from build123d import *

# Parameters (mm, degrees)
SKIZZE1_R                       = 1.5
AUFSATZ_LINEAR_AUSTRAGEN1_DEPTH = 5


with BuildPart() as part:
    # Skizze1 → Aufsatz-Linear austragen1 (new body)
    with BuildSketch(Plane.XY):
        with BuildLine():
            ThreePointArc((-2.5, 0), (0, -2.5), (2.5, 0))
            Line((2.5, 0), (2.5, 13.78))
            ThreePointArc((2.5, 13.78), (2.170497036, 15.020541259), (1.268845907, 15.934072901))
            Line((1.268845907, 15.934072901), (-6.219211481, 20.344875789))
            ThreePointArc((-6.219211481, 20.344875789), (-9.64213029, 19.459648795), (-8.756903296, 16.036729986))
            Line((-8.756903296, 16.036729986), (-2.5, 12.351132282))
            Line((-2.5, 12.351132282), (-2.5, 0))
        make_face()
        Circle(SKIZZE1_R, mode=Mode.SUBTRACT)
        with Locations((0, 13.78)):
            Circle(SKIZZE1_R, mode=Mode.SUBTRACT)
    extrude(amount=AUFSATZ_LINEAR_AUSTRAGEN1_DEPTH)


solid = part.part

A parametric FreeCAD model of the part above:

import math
import FreeCAD as App
import Part
import Sketcher

V = App.Vector
Q = App.Units.Quantity

doc = App.newDocument("Part")
body = doc.addObject("PartDesign::Body", "Body")

sketch1 = body.newObject("Sketcher::SketchObject", "Sketch")
sketch1.AttachmentSupport = (doc.getObject("XY_Plane"), [""])
sketch1.MapMode = "FlatFace"
sketch1.addGeometry([
    Part.ArcOfCircle(Part.Circle(V(0, 0, 0), V(0, 0, 1), 2.5), math.radians(180), math.radians(360)),
    Part.LineSegment(V(2.5, 0, 0), V(2.5, 13.8, 0)),
    Part.ArcOfCircle(Part.Circle(V(0, 13.8, 0), V(0, 0, 1), 2.5), math.radians(0), math.radians(59)),
    Part.LineSegment(V(1.3, 15.9, 0), V(-6.2, 20.3, 0)),
    Part.ArcOfCircle(Part.Circle(V(-7.5, 18.2, 0), V(0, 0, 1), 2.5), math.radians(59), math.radians(240)),
    Part.LineSegment(V(-8.8, 16, 0), V(-2.5, 12.4, 0)),
    Part.LineSegment(V(-2.5, 12.4, 0), V(-2.5, 0, 0)),
    Part.Circle(V(0, 0, 0), V(0, 0, 1), 1.5),
    Part.Circle(V(0, 13.8, 0), V(0, 0, 1), 1.5),
], False)
sketch1.addConstraint([
    Sketcher.Constraint("Tangent", 0, 2, 1, 1),
    Sketcher.Constraint("Tangent", 1, 2, 2, 1),
    Sketcher.Constraint("Tangent", 2, 2, 3, 1),
    Sketcher.Constraint("Tangent", 3, 2, 4, 1),
    Sketcher.Constraint("Tangent", 4, 2, 5, 1),
    Sketcher.Constraint("Coincident", 5, 2, 6, 1),
    Sketcher.Constraint("Tangent", 6, 2, 0, 1),
    Sketcher.Constraint("Vertical", 1),
    Sketcher.Constraint("Vertical", 6),
    Sketcher.Constraint("Coincident", 0, 3, -1, 1),
    Sketcher.Constraint("Coincident", 7, 3, -1, 1),
    Sketcher.Constraint("Coincident", 8, 3, 2, 3),
    Sketcher.Constraint("Equal", 0, 2),
    Sketcher.Constraint("Equal", 2, 4),
    Sketcher.Constraint("Equal", 7, 8),
    Sketcher.Constraint("Parallel", 3, 5),
    Sketcher.Constraint("Diameter", 7, Q("3 mm")),
    Sketcher.Constraint("Radius", 0, Q("2.5 mm")),
    Sketcher.Constraint("Angle", 3, Q("149.5 deg")),
    Sketcher.Constraint("DistanceY", 1, 1, 1, 2, Q("13.78 mm")),
    Sketcher.Constraint("Distance", 3, Q("8.69058 mm")),
])
pad1 = body.newObject("PartDesign::Pad", "Pad")
pad1.Profile = sketch1
pad1.Length = 5

doc.recompute()
